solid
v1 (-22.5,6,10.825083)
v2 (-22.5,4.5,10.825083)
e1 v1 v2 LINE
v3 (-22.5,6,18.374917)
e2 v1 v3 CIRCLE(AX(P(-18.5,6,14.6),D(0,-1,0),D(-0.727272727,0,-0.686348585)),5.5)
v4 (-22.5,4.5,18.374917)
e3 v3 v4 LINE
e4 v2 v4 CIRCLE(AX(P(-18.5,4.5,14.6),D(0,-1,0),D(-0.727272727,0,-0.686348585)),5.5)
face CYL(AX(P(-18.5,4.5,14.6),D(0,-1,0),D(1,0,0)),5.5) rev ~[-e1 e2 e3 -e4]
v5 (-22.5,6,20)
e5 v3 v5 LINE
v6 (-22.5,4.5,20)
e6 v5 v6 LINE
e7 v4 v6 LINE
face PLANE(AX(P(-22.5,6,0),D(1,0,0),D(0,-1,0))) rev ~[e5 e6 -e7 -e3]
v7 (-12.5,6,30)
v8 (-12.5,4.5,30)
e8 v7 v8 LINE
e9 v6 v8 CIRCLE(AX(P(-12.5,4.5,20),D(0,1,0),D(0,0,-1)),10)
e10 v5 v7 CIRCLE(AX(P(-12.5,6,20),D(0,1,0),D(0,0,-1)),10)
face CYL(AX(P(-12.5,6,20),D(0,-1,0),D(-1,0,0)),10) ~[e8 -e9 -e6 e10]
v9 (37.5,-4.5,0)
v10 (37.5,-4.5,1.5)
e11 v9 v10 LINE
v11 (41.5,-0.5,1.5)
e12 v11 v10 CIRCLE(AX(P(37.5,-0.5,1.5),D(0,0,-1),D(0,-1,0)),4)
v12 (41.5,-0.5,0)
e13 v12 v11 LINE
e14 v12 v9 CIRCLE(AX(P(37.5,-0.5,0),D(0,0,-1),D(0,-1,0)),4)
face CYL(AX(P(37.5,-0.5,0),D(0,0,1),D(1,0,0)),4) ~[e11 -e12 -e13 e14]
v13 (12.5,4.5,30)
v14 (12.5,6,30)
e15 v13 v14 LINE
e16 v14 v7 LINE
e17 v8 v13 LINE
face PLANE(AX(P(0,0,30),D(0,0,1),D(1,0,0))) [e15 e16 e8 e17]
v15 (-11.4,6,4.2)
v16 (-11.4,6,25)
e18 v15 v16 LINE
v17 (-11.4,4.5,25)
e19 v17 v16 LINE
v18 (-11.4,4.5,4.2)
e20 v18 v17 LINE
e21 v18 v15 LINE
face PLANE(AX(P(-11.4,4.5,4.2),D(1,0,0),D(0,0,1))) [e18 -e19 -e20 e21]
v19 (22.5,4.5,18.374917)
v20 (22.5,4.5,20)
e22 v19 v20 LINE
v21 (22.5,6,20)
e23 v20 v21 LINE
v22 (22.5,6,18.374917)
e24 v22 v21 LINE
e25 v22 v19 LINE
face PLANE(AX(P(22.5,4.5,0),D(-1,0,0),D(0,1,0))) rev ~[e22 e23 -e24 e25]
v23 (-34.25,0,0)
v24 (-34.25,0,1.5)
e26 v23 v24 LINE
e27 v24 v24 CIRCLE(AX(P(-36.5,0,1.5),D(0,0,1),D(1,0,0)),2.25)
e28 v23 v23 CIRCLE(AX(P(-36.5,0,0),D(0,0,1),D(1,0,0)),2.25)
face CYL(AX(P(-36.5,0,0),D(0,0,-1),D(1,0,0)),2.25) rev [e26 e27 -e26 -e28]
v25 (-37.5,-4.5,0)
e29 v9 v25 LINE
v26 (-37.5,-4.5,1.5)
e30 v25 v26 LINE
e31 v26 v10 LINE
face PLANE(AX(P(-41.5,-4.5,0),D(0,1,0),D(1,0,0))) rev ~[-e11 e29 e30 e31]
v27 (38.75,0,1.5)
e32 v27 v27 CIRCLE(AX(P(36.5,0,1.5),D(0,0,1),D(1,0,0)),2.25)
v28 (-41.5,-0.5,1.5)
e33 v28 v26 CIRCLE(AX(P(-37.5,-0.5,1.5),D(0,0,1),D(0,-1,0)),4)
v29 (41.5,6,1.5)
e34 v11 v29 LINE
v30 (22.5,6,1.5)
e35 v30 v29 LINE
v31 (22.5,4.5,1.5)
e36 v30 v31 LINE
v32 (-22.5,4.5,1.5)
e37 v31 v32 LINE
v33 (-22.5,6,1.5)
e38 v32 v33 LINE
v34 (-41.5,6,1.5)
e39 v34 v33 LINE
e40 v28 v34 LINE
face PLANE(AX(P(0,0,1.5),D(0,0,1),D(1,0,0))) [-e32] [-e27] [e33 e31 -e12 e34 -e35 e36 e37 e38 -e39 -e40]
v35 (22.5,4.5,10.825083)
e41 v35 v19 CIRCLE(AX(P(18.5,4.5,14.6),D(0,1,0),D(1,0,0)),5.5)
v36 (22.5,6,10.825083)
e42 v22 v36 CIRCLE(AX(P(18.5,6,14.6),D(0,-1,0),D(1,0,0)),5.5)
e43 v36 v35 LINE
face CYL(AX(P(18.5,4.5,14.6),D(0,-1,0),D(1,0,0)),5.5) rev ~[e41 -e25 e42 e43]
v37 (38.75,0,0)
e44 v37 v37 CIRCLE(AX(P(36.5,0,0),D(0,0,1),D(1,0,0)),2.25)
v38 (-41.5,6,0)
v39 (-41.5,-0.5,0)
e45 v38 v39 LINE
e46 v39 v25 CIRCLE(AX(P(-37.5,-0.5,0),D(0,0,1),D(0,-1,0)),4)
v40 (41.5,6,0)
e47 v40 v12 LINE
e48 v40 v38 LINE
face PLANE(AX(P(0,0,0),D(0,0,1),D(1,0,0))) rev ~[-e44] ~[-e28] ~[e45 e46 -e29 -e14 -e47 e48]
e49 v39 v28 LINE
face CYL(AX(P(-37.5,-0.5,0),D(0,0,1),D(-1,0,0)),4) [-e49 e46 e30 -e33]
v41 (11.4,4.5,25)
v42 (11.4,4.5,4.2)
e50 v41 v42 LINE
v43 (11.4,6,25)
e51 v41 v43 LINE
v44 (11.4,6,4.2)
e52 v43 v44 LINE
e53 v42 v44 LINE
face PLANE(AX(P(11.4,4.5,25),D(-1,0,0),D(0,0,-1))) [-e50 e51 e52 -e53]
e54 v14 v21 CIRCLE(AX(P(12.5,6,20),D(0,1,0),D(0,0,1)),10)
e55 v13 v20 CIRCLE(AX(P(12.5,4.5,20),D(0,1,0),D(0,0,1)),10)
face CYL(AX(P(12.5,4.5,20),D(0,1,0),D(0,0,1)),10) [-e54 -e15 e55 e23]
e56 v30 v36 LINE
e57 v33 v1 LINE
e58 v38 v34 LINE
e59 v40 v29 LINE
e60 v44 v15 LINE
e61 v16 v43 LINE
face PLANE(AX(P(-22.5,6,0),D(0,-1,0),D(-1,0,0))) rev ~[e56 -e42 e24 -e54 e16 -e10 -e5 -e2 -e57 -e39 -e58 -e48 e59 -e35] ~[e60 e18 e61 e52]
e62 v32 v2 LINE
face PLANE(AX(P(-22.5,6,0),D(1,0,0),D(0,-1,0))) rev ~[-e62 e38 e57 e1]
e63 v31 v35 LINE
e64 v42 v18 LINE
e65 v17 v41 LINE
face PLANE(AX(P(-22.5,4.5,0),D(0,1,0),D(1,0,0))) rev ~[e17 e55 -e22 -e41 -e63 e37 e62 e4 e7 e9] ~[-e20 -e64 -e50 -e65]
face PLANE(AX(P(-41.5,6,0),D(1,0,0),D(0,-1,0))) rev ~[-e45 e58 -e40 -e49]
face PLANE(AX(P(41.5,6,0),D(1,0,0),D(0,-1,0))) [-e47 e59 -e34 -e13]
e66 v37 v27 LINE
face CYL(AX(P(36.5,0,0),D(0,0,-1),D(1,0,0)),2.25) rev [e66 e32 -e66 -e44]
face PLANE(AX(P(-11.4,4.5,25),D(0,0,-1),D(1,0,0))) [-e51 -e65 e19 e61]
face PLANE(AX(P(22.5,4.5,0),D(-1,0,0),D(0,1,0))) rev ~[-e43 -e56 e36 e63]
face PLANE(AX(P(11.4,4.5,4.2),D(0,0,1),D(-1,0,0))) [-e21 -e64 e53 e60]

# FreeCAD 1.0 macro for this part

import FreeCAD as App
import Part
import Sketcher
Q = App.Units.Quantity


def edges_at(feature, points):
    """Names of the edges that pass closest to the given points."""
    edges = feature.Shape.Edges
    near = lambda p: min(range(len(edges)), key=lambda i: edges[i].distToShape(Part.Vertex(*p))[0])
    return sorted({f"Edge{near(p) + 1}" for p in points})


def add_polygon(sketch, points):
    """Adds a closed chain of lines whose ends are joined by coincident constraints."""
    first, n = sketch.GeometryCount, len(points)
    for a, b in zip(points, points[1:] + points[:1]):
        sketch.addGeometry(Part.LineSegment(App.Vector(*a, 0), App.Vector(*b, 0)), False)
    for i in range(n):
        sketch.addConstraint(Sketcher.Constraint("Coincident", first + i, 2, first + (i + 1) % n, 1))

doc = App.newDocument("Part")
params = doc.addObject("Spreadsheet::Sheet", "Params")
for row, (alias, value) in enumerate([
    ("sketch1_diameter", "4.5 mm"),
    ("sketch1_width", "83 mm"),
    ("sketch1_height", "10.5 mm"),
    ("pad1_length", "1.5 mm"),
    ("sketch2_width", "45 mm"),
    ("sketch2_height", "1.5 mm"),
    ("pad2_length", "30 mm"),
    ("sketch3_diameter", "11 mm"),
    ("sketch3_width", "22.8 mm"),
    ("sketch3_height", "20.8 mm"),
    ("pocket1_length", "10 mm"),
    ("fillet_radius", "10 mm"),
    ("fillet2_radius", "4 mm"),
], start=1):
    params.set(f"A{row}", alias)
    params.set(f"B{row}", "=" + value)
    params.setAlias(f"B{row}", alias)

body = doc.addObject("PartDesign::Body", "Body")

sketch1 = body.newObject("Sketcher::SketchObject", "Sketch")
sketch1.AttachmentSupport = (doc.getObject("XY_Plane"), [""])
sketch1.MapMode = "FlatFace"
add_polygon(sketch1, [(-41.5, 6), (-41.5, -4.5), (41.5, -4.5), (41.5, 6)])
sketch1.addGeometry(Part.Circle(App.Vector(-36.5, 0, 0), App.Vector(0, 0, 1), 2.2), False)
sketch1.addGeometry(Part.Circle(App.Vector(36.5, 0, 0), App.Vector(0, 0, 1), 2.2), False)
sketch1.addConstraint(Sketcher.Constraint("Vertical", 0))
sketch1.addConstraint(Sketcher.Constraint("Horizontal", 1))
sketch1.addConstraint(Sketcher.Constraint("Vertical", 2))
sketch1.addConstraint(Sketcher.Constraint("Horizontal", 3))
sketch1.addConstraint(Sketcher.Constraint("Equal", 4, 5))
sketch1.addConstraint(Sketcher.Constraint("Symmetric", 4, 3, 5, 3, -1, 1))
sketch1.addConstraint(Sketcher.Constraint("PointOnObject", 4, 3, -1))
sketch1.addConstraint(Sketcher.Constraint("Diameter", 4, Q("4.5 mm")))
sketch1.addConstraint(Sketcher.Constraint("DistanceX", 1, 1, 1, 2, Q("83 mm")))
sketch1.addConstraint(Sketcher.Constraint("DistanceX", 0, 2, 4, 3, Q("5 mm")))
sketch1.addConstraint(Sketcher.Constraint("DistanceX", 5, 3, 1, 2, Q("5 mm")))
sketch1.addConstraint(Sketcher.Constraint("DistanceY", 0, 2, -1, 1, Q("4.5 mm")))
sketch1.addConstraint(Sketcher.Constraint("DistanceY", 0, 2, 0, 1, Q("10.5 mm")))
sketch1.setExpression("Constraints[11]", "Params.sketch1_diameter")
sketch1.setExpression("Constraints[12]", "Params.sketch1_width")
sketch1.setExpression("Constraints[16]", "Params.sketch1_height")
pad1 = body.newObject("PartDesign::Pad", "Pad")
pad1.Profile = sketch1
pad1.setExpression("Length", "Params.pad1_length")

sketch2 = body.newObject("Sketcher::SketchObject", "Sketch001")
sketch2.AttachmentSupport = (doc.getObject("XY_Plane"), [""])
sketch2.MapMode = "FlatFace"
add_polygon(sketch2, [(-22.5, 6), (-22.5, 4.5), (22.5, 4.5), (22.5, 6)])
sketch2.addConstraint(Sketcher.Constraint("Vertical", 0))
sketch2.addConstraint(Sketcher.Constraint("Horizontal", 1))
sketch2.addConstraint(Sketcher.Constraint("Vertical", 2))
sketch2.addConstraint(Sketcher.Constraint("Horizontal", 3))
sketch2.addConstraint(Sketcher.Constraint("DistanceX", 1, 1, 1, 2, Q("45 mm")))
sketch2.addConstraint(Sketcher.Constraint("DistanceY", 0, 2, 0, 1, Q("1.5 mm")))
sketch2.addConstraint(Sketcher.Constraint("DistanceY", -1, 1, 0, 2, Q("4.5 mm")))
sketch2.addConstraint(Sketcher.Constraint("DistanceX", 0, 2, -1, 1, Q("22.5 mm")))
sketch2.setExpression("Constraints[8]", "Params.sketch2_width")
sketch2.setExpression("Constraints[9]", "Params.sketch2_height")
pad2 = body.newObject("PartDesign::Pad", "Pad001")
pad2.Profile = sketch2
pad2.setExpression("Length", "Params.pad2_length")

sketch3 = body.newObject("Sketcher::SketchObject", "Sketch002")
sketch3.AttachmentSupport = (doc.getObject("XZ_Plane"), [""])
sketch3.MapMode = "FlatFace"
sketch3.AttachmentOffset = App.Placement(App.Vector(0, 0, -4.5), App.Rotation())
sketch3.addGeometry(Part.Circle(App.Vector(18, 15, 0), App.Vector(0, 0, 1), 6), False)
sketch3.addGeometry(Part.Circle(App.Vector(-18, 15, 0), App.Vector(0, 0, 1), 6), False)
add_polygon(sketch3, [(11, 25), (-11, 25), (-11, 4), (11, 4)])
sketch3.addConstraint(Sketcher.Constraint("Horizontal", 2))
sketch3.addConstraint(Sketcher.Constraint("Vertical", 3))
sketch3.addConstraint(Sketcher.Constraint("Horizontal", 4))
sketch3.addConstraint(Sketcher.Constraint("Vertical", 5))
sketch3.addConstraint(Sketcher.Constraint("Equal", 0, 1))
sketch3.addConstraint(Sketcher.Constraint("Symmetric", 0, 3, 1, 3, -2))
sketch3.addConstraint(Sketcher.Constraint("Diameter", 0, Q("11 mm")))
sketch3.addConstraint(Sketcher.Constraint("DistanceX", 2, 2, 2, 1, Q("22.8 mm")))
sketch3.addConstraint(Sketcher.Constraint("DistanceY", 3, 2, 3, 1, Q("20.8 mm")))
sketch3.addConstraint(Sketcher.Constraint("DistanceY", -1, 1, 2, 2, Q("25 mm")))
sketch3.addConstraint(Sketcher.Constraint("DistanceX", 1, 3, 0, 3, Q("37 mm")))
sketch3.addConstraint(Sketcher.Constraint("DistanceY", -1, 1, 0, 3, Q("14.6 mm")))
sketch3.addConstraint(Sketcher.Constraint("DistanceX", 2, 2, -1, 1, Q("11.4 mm")))
sketch3.setExpression("Constraints[10]", "Params.sketch3_diameter")
sketch3.setExpression("Constraints[11]", "Params.sketch3_width")
sketch3.setExpression("Constraints[12]", "Params.sketch3_height")
pocket1 = body.newObject("PartDesign::Pocket", "Pocket")
pocket1.Profile = sketch3
pocket1.setExpression("Length", "Params.pocket1_length")
doc.recompute()

fillet = body.newObject("PartDesign::Fillet", "Fillet")
fillet.Base = (pocket1, edges_at(pocket1, [(-22.5, 5.25, 30), (22.5, 5.25, 30)]))
fillet.setExpression("Radius", "Params.fillet_radius")
doc.recompute()

fillet2 = body.newObject("PartDesign::Fillet", "Fillet001")
fillet2.Base = (fillet, edges_at(fillet, [(-41.5, -4.5, 0.75), (41.5, -4.5, 0.75)]))
fillet2.setExpression("Radius", "Params.fillet2_radius")

doc.recompute()
